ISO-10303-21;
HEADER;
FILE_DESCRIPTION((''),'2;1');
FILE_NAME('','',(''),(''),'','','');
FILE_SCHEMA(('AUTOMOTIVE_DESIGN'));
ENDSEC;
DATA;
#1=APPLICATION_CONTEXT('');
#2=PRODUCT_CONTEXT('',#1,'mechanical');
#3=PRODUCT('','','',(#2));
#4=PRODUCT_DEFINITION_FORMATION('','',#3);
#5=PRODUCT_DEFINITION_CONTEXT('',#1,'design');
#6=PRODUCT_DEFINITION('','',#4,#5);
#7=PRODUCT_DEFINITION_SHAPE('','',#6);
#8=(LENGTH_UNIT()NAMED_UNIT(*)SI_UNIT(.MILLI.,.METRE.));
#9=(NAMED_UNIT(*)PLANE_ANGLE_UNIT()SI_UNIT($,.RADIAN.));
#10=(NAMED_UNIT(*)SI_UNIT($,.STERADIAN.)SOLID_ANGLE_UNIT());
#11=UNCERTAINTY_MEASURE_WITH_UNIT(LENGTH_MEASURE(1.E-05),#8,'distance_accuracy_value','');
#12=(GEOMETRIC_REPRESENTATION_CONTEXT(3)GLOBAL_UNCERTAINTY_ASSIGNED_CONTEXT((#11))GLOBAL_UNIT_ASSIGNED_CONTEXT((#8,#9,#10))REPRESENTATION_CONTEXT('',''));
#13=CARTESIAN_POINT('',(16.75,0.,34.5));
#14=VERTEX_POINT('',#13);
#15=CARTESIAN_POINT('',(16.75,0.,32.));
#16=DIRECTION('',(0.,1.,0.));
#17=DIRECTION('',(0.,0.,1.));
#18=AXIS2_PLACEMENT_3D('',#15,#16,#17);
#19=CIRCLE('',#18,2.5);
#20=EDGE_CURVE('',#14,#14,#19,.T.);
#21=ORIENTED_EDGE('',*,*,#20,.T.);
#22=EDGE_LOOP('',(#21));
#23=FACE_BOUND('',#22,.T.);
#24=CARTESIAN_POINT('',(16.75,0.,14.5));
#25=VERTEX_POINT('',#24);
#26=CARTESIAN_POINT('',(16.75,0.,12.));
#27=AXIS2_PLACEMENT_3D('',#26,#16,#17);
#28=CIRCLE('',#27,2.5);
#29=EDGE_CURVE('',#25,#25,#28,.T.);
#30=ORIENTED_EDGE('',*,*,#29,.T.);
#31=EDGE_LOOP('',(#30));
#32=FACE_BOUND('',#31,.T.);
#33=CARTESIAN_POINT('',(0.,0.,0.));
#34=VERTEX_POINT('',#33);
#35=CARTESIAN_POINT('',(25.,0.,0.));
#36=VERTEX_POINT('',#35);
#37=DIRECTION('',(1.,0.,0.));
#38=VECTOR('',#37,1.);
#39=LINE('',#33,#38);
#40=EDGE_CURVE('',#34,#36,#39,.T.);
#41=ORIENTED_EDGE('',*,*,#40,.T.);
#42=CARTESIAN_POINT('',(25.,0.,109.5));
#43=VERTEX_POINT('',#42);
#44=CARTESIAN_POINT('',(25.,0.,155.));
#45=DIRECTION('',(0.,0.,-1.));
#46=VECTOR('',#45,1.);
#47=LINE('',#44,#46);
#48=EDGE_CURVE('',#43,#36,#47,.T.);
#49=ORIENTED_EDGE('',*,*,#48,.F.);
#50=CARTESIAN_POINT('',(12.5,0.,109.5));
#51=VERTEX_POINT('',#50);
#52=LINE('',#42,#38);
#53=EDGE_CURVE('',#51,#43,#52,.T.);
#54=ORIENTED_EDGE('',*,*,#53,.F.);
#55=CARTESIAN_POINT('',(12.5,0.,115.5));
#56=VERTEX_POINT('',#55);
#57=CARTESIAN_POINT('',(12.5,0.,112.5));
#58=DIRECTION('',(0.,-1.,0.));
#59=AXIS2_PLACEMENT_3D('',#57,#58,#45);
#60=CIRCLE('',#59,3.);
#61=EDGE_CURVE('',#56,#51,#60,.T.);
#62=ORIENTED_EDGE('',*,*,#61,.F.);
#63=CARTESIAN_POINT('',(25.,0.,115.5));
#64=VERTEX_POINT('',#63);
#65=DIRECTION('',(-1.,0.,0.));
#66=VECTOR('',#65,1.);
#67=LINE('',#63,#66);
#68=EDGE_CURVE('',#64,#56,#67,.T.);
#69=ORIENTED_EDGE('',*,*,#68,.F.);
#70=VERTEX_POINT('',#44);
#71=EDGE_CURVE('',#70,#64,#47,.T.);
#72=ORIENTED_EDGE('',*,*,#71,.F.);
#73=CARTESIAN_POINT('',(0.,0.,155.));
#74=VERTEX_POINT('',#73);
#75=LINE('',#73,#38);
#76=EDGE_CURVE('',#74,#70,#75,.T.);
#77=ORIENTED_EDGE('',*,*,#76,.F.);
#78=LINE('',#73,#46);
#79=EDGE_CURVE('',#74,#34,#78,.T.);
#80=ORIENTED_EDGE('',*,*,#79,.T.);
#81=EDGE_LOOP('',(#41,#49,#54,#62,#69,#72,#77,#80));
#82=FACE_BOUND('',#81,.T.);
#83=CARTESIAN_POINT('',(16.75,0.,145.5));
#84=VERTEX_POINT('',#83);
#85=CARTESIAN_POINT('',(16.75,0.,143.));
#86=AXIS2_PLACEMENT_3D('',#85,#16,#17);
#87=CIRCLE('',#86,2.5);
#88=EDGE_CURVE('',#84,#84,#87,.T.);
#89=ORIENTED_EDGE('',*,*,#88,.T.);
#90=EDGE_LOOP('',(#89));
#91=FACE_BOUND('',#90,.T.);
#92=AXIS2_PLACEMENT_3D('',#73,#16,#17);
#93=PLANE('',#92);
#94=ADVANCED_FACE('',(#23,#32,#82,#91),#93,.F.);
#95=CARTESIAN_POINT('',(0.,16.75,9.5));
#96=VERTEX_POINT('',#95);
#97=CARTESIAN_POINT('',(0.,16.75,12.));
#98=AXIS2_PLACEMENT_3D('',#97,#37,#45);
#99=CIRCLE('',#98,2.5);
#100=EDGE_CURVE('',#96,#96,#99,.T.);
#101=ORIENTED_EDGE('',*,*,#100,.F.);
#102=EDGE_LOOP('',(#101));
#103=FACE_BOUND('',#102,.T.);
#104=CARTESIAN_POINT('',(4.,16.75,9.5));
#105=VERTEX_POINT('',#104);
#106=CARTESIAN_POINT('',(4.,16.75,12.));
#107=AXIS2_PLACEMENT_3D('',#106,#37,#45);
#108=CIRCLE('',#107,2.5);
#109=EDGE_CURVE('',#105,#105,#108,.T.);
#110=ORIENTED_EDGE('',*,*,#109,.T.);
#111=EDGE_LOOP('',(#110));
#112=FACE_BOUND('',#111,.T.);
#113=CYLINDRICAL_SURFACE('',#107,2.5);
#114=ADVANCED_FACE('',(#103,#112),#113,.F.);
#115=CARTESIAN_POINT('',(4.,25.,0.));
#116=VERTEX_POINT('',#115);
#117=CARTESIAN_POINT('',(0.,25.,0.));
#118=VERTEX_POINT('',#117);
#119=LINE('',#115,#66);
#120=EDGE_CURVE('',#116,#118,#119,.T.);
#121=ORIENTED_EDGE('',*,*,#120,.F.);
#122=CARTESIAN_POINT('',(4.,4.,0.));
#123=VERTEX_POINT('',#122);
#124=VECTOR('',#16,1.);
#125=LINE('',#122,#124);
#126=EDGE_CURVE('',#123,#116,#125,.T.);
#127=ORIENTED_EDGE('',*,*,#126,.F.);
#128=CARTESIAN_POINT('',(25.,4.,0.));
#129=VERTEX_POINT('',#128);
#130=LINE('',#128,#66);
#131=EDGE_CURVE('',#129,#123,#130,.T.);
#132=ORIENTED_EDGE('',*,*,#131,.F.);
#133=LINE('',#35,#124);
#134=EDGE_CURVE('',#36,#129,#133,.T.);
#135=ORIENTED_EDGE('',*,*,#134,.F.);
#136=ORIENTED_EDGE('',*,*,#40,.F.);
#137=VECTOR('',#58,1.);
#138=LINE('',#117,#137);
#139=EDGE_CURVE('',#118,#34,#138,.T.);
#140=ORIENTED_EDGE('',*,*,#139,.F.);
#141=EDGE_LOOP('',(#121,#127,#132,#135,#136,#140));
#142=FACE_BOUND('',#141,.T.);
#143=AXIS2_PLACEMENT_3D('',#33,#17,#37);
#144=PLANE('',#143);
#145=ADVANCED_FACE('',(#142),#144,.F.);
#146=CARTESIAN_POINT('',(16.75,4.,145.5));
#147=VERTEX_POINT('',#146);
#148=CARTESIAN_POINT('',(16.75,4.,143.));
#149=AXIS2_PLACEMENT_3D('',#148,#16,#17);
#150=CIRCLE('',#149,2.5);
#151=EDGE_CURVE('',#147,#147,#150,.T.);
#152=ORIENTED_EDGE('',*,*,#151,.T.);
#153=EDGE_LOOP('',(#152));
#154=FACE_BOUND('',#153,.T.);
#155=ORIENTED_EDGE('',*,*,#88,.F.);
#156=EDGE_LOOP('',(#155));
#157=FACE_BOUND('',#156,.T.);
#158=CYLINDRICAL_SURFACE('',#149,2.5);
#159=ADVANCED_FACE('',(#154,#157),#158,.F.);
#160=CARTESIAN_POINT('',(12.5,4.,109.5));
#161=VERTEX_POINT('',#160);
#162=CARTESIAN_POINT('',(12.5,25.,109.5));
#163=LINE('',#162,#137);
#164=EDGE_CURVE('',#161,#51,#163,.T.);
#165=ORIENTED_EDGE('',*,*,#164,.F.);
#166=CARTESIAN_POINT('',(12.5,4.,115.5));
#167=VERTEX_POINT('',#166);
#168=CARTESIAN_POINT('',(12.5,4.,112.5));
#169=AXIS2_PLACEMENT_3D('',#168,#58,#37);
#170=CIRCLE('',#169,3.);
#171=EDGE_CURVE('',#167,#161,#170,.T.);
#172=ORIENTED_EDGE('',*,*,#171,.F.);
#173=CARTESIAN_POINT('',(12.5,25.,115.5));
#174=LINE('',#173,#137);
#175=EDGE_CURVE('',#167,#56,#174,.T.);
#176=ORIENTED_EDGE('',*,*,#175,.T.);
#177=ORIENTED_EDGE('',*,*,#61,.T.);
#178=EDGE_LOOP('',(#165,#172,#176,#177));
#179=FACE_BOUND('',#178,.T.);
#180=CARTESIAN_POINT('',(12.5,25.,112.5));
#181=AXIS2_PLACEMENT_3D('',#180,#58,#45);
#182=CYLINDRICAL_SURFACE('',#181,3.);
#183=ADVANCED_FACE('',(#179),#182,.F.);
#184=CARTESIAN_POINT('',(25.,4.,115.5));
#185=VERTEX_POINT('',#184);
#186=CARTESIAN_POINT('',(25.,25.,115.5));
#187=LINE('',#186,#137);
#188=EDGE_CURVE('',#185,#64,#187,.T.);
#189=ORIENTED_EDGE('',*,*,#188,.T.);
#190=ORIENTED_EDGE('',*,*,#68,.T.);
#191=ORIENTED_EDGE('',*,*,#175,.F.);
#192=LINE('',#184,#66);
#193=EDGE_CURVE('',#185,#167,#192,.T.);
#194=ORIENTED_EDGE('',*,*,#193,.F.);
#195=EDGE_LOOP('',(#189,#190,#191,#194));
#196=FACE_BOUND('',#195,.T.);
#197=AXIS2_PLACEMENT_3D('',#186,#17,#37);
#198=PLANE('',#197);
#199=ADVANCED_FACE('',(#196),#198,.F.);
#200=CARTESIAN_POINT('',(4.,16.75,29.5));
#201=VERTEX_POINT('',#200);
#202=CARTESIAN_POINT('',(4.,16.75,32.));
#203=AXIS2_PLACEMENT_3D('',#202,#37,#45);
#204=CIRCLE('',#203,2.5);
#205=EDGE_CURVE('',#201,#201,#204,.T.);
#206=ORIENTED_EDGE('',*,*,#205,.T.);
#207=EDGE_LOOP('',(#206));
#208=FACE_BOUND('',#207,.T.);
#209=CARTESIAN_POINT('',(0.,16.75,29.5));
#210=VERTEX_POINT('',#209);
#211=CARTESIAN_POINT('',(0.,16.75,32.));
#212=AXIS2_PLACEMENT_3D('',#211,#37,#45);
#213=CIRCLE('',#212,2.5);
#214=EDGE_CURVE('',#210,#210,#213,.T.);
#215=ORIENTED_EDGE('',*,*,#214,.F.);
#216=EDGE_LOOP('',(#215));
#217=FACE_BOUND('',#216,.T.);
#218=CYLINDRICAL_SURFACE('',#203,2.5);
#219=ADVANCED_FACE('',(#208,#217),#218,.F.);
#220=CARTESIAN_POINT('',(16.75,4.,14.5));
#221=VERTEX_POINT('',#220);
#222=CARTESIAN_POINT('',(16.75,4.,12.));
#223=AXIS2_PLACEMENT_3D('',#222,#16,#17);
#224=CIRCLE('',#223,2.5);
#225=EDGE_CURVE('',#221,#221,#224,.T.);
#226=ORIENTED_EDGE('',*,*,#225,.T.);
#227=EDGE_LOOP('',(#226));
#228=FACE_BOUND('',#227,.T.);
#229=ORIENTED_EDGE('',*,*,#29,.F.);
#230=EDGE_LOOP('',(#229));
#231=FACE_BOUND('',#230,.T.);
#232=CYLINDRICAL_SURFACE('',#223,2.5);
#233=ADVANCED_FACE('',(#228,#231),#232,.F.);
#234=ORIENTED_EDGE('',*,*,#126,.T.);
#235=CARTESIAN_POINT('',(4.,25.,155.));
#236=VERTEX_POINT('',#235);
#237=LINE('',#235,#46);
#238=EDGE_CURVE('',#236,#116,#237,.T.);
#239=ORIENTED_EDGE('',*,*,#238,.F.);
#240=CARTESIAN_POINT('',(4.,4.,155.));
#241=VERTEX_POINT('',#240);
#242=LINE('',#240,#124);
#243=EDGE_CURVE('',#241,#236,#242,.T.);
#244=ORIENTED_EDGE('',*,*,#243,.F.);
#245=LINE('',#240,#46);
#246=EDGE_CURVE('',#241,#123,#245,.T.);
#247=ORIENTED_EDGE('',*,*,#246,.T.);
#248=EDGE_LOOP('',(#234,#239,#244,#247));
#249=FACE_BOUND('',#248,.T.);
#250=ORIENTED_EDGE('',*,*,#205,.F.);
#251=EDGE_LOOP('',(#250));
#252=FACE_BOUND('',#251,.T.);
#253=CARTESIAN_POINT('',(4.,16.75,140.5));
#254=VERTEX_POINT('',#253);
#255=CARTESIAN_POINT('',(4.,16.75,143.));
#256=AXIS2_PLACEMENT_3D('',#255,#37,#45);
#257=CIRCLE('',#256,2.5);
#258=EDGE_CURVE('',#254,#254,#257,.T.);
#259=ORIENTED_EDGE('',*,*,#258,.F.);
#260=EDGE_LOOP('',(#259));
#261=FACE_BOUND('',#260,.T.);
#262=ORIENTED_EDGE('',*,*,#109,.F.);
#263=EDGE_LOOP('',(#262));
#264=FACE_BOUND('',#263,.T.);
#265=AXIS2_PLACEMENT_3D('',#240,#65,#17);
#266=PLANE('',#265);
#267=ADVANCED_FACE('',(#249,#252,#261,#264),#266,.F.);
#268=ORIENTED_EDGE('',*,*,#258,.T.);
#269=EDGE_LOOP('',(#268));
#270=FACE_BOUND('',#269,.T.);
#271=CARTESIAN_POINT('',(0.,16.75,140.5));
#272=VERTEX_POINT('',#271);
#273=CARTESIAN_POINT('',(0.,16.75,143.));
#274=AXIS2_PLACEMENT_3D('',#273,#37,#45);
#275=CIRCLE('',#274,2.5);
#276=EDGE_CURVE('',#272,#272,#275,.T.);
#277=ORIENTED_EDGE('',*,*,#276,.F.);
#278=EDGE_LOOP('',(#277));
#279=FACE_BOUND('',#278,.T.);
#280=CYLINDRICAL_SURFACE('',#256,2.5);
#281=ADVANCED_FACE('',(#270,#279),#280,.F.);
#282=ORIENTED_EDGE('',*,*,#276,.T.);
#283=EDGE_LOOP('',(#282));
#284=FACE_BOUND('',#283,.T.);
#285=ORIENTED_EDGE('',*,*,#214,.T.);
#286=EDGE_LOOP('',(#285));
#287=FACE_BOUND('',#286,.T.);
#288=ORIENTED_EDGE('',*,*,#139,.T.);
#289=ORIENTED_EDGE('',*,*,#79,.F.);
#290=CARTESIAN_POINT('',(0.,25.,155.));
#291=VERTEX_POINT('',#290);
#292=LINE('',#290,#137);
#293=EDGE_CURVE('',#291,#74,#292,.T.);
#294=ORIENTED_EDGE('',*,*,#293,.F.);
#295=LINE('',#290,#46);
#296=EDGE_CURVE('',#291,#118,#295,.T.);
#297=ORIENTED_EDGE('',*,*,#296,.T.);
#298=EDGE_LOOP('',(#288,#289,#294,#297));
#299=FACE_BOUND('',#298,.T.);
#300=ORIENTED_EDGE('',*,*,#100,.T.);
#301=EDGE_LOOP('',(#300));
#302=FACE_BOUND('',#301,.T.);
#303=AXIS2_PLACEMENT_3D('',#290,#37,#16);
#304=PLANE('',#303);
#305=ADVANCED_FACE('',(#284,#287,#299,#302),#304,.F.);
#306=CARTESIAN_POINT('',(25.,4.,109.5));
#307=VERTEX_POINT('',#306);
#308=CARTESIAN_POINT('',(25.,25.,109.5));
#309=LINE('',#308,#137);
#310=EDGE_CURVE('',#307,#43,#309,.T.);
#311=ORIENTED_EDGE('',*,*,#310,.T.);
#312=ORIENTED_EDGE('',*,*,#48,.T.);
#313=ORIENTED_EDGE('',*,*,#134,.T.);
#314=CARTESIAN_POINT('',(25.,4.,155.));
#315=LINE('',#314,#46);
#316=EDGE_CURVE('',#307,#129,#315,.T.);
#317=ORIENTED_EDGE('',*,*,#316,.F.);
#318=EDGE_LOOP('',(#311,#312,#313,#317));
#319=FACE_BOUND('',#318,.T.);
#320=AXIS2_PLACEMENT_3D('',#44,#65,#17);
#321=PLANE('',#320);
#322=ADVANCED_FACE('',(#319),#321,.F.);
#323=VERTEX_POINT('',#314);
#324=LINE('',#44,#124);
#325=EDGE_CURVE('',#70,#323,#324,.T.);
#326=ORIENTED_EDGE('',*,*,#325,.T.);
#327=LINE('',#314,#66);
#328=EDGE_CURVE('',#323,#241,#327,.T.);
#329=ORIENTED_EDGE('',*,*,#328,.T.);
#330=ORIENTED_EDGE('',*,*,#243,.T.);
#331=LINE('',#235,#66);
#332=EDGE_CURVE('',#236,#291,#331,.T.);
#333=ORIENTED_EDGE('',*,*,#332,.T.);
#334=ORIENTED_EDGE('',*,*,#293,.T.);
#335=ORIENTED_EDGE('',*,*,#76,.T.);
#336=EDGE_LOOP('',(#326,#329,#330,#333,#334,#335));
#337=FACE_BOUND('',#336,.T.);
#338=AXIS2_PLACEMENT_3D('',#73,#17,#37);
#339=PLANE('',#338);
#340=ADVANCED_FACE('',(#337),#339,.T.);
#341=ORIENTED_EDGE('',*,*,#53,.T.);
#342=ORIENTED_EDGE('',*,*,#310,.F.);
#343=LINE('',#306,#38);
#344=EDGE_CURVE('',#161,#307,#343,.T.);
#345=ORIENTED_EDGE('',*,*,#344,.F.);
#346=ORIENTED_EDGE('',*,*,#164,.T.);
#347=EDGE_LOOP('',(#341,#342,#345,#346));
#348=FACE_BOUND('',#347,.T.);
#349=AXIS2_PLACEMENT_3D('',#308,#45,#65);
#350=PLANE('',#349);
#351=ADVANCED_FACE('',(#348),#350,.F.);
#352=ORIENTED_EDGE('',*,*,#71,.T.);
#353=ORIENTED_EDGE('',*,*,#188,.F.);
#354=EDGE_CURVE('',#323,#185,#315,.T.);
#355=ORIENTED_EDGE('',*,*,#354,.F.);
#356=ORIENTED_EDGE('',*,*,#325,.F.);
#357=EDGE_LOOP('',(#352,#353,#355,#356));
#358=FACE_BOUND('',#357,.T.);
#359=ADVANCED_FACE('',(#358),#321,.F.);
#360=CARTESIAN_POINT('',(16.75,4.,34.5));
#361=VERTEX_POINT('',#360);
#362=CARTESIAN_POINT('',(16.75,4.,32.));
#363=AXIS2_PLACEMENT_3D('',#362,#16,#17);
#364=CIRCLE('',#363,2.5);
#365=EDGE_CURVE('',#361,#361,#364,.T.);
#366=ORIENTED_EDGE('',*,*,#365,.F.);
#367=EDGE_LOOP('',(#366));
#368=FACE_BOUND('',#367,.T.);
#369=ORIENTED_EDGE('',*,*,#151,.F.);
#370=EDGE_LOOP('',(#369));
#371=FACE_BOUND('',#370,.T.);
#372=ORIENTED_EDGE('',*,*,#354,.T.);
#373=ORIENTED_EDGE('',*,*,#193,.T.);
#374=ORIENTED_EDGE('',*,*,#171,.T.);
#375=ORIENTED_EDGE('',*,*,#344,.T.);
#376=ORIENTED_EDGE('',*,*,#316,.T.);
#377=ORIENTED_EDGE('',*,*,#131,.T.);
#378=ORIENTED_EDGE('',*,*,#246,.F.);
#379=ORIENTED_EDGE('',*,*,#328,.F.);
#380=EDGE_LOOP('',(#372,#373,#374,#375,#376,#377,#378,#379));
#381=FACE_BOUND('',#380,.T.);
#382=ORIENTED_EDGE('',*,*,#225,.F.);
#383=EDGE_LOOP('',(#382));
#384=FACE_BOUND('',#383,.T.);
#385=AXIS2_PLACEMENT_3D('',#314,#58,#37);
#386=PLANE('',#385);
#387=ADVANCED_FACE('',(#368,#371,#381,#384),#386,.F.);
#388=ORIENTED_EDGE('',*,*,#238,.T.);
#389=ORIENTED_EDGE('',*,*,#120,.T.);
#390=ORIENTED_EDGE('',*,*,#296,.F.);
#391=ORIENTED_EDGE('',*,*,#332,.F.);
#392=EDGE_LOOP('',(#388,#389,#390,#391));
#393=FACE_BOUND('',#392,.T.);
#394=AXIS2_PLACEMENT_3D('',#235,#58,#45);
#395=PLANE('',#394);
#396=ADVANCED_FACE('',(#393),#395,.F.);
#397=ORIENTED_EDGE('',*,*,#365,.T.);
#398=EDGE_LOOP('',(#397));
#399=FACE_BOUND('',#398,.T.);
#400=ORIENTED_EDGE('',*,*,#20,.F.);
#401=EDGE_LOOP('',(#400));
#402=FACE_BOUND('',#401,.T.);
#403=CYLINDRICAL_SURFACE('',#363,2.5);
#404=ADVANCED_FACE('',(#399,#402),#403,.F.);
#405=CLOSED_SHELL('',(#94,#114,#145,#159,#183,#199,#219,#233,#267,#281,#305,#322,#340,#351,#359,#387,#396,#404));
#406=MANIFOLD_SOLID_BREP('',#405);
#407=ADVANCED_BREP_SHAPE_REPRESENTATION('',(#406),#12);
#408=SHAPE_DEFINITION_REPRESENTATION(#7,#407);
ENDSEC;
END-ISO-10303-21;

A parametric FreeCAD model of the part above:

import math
import FreeCAD as App
import Part
import Sketcher
from FreeCAD import Vector
Q = App.Units.Quantity

doc = App.newDocument("Part")
body = doc.addObject("PartDesign::Body", "Body")

# Sketch on XY plane
sketch1 = body.newObject("Sketcher::SketchObject", "Sketch")
sketch1.AttachmentSupport = (doc.getObject("XY_Plane"), [""])
sketch1.MapMode = "FlatFace"
sketch1.addGeometry([
    Part.LineSegment(Vector(0, 25, 0), Vector(0, 0, 0)),  # 0
    Part.LineSegment(Vector(0, 0, 0), Vector(25, 0, 0)),  # 1
    Part.LineSegment(Vector(25, 0, 0), Vector(25, 4, 0)),  # 2
    Part.LineSegment(Vector(25, 4, 0), Vector(4, 4, 0)),  # 3
    Part.LineSegment(Vector(4, 4, 0), Vector(4, 25, 0)),  # 4
    Part.LineSegment(Vector(4, 25, 0), Vector(0, 25, 0)),  # 5
], False)
sketch1.addConstraint([
    Sketcher.Constraint("Coincident", 0, 2, 1, 1),
    Sketcher.Constraint("Coincident", 1, 2, 2, 1),
    Sketcher.Constraint("Coincident", 2, 2, 3, 1),
    Sketcher.Constraint("Coincident", 3, 2, 4, 1),
    Sketcher.Constraint("Coincident", 4, 2, 5, 1),
    Sketcher.Constraint("Coincident", 5, 2, 0, 1),
    Sketcher.Constraint("Vertical", 0),
    Sketcher.Constraint("Horizontal", 1),
    Sketcher.Constraint("Vertical", 2),
    Sketcher.Constraint("Horizontal", 3),
    Sketcher.Constraint("Vertical", 4),
    Sketcher.Constraint("Horizontal", 5),
    Sketcher.Constraint("Coincident", 0, 2, -1, 1),
    Sketcher.Constraint("Equal", 1, 0),
    Sketcher.Constraint("Equal", 5, 2),
    Sketcher.Constraint("DistanceX", 1, 1, 1, 2, Q("25 mm")),
    Sketcher.Constraint("DistanceX", 3, 2, 3, 1, Q("21 mm")),
])
pad1 = body.newObject("PartDesign::Pad", "Pad")
pad1.Profile = sketch1
pad1.Length = 155

# Sketch on XZ plane
sketch2 = body.newObject("Sketcher::SketchObject", "Sketch001")
sketch2.AttachmentSupport = (doc.getObject("XZ_Plane"), [""])
sketch2.MapMode = "FlatFace"
sketch2.AttachmentOffset = App.Placement(Vector(0, 0, -4), App.Rotation())
sketch2.addGeometry([
    Part.Circle(Vector(16.8, 12, 0), Vector(0, 0, 1), 2.5),
    Part.Circle(Vector(16.8, 143, 0), Vector(0, 0, 1), 2.5),
    Part.Circle(Vector(16.8, 32, 0), Vector(0, 0, 1), 2.5),
], False)
sketch2.addConstraint([
    Sketcher.Constraint("Equal", 0, 1),
    Sketcher.Constraint("Equal", 1, 2),
    Sketcher.Constraint("Vertical", 0, 3, 1, 3),
    Sketcher.Constraint("Vertical", 1, 3, 2, 3),
    Sketcher.Constraint("Diameter", 0, Q("5 mm")),
    Sketcher.Constraint("DistanceY", -1, 1, 0, 3, Q("12 mm")),
    Sketcher.Constraint("DistanceY", -1, 1, 1, 3, Q("143 mm")),
    Sketcher.Constraint("DistanceY", -1, 1, 2, 3, Q("32 mm")),
    Sketcher.Constraint("DistanceX", -1, 1, 0, 3, Q("16.75 mm")),
])
doc.recompute()
hole = body.newObject("PartDesign::Hole", "Hole")
hole.Profile = sketch2
hole.ThreadType = "None"
hole.Diameter = 5
hole.DepthType = "ThroughAll"
hole.Reversed = True

# Sketch on YZ plane
sketch3 = body.newObject("Sketcher::SketchObject", "Sketch002")
sketch3.AttachmentSupport = (doc.getObject("YZ_Plane"), [""])
sketch3.MapMode = "FlatFace"
sketch3.AttachmentOffset = App.Placement(Vector(0, 0, 4), App.Rotation())
sketch3.addGeometry([
    Part.Circle(Vector(16.8, 143, 0), Vector(0, 0, 1), 2.5),
    Part.Circle(Vector(16.8, 12, 0), Vector(0, 0, 1), 2.5),
    Part.Circle(Vector(16.8, 32, 0), Vector(0, 0, 1), 2.5),
], False)
sketch3.addConstraint([
    Sketcher.Constraint("Equal", 0, 1),
    Sketcher.Constraint("Equal", 1, 2),
    Sketcher.Constraint("Vertical", 0, 3, 1, 3),
    Sketcher.Constraint("Vertical", 1, 3, 2, 3),
    Sketcher.Constraint("Diameter", 0, Q("5 mm")),
    Sketcher.Constraint("DistanceY", -1, 1, 0, 3, Q("143 mm")),
    Sketcher.Constraint("DistanceY", -1, 1, 1, 3, Q("12 mm")),
    Sketcher.Constraint("DistanceY", -1, 1, 2, 3, Q("32 mm")),
    Sketcher.Constraint("DistanceX", -1, 1, 0, 3, Q("16.75 mm")),
])
doc.recompute()
hole2 = body.newObject("PartDesign::Hole", "Hole001")
hole2.Profile = sketch3
hole2.ThreadType = "None"
hole2.Diameter = 5
hole2.DepthType = "ThroughAll"

# Sketch on XZ plane
sketch4 = body.newObject("Sketcher::SketchObject", "Sketch003")
sketch4.AttachmentSupport = (doc.getObject("XZ_Plane"), [""])
sketch4.MapMode = "FlatFace"
sketch4.addGeometry([
    Part.LineSegment(Vector(12.5, 109.5, 0), Vector(25, 109.5, 0)),
    Part.ArcOfCircle(Part.Circle(Vector(25, 112.5, 0), Vector(0, 0, 1), 3), math.radians(-90), math.radians(90)),
    Part.LineSegment(Vector(25, 115.5, 0), Vector(12.5, 115.5, 0)),
    Part.ArcOfCircle(Part.Circle(Vector(12.5, 112.5, 0), Vector(0, 0, 1), 3), math.radians(90), math.radians(270)),
], False)
sketch4.addConstraint([
    Sketcher.Constraint("Tangent", 0, 2, 1, 1),
    Sketcher.Constraint("Tangent", 1, 2, 2, 1),
    Sketcher.Constraint("Tangent", 2, 2, 3, 1),
    Sketcher.Constraint("Tangent", 3, 2, 0, 1),
    Sketcher.Constraint("Horizontal", 0),
    Sketcher.Constraint("Horizontal", 2),
    Sketcher.Constraint("Radius", 1, Q("3 mm")),
    Sketcher.Constraint("DistanceX", 0, 1, 0, 2, Q("12.5 mm")),
    Sketcher.Constraint("DistanceX", -1, 1, 1, 3, Q("25 mm")),
    Sketcher.Constraint("DistanceY", -1, 1, 1, 3, Q("112.5 mm")),
])
pocket1 = body.newObject("PartDesign::Pocket", "Pocket")
pocket1.Profile = sketch4
pocket1.Type = "ThroughAll"

doc.recompute()
